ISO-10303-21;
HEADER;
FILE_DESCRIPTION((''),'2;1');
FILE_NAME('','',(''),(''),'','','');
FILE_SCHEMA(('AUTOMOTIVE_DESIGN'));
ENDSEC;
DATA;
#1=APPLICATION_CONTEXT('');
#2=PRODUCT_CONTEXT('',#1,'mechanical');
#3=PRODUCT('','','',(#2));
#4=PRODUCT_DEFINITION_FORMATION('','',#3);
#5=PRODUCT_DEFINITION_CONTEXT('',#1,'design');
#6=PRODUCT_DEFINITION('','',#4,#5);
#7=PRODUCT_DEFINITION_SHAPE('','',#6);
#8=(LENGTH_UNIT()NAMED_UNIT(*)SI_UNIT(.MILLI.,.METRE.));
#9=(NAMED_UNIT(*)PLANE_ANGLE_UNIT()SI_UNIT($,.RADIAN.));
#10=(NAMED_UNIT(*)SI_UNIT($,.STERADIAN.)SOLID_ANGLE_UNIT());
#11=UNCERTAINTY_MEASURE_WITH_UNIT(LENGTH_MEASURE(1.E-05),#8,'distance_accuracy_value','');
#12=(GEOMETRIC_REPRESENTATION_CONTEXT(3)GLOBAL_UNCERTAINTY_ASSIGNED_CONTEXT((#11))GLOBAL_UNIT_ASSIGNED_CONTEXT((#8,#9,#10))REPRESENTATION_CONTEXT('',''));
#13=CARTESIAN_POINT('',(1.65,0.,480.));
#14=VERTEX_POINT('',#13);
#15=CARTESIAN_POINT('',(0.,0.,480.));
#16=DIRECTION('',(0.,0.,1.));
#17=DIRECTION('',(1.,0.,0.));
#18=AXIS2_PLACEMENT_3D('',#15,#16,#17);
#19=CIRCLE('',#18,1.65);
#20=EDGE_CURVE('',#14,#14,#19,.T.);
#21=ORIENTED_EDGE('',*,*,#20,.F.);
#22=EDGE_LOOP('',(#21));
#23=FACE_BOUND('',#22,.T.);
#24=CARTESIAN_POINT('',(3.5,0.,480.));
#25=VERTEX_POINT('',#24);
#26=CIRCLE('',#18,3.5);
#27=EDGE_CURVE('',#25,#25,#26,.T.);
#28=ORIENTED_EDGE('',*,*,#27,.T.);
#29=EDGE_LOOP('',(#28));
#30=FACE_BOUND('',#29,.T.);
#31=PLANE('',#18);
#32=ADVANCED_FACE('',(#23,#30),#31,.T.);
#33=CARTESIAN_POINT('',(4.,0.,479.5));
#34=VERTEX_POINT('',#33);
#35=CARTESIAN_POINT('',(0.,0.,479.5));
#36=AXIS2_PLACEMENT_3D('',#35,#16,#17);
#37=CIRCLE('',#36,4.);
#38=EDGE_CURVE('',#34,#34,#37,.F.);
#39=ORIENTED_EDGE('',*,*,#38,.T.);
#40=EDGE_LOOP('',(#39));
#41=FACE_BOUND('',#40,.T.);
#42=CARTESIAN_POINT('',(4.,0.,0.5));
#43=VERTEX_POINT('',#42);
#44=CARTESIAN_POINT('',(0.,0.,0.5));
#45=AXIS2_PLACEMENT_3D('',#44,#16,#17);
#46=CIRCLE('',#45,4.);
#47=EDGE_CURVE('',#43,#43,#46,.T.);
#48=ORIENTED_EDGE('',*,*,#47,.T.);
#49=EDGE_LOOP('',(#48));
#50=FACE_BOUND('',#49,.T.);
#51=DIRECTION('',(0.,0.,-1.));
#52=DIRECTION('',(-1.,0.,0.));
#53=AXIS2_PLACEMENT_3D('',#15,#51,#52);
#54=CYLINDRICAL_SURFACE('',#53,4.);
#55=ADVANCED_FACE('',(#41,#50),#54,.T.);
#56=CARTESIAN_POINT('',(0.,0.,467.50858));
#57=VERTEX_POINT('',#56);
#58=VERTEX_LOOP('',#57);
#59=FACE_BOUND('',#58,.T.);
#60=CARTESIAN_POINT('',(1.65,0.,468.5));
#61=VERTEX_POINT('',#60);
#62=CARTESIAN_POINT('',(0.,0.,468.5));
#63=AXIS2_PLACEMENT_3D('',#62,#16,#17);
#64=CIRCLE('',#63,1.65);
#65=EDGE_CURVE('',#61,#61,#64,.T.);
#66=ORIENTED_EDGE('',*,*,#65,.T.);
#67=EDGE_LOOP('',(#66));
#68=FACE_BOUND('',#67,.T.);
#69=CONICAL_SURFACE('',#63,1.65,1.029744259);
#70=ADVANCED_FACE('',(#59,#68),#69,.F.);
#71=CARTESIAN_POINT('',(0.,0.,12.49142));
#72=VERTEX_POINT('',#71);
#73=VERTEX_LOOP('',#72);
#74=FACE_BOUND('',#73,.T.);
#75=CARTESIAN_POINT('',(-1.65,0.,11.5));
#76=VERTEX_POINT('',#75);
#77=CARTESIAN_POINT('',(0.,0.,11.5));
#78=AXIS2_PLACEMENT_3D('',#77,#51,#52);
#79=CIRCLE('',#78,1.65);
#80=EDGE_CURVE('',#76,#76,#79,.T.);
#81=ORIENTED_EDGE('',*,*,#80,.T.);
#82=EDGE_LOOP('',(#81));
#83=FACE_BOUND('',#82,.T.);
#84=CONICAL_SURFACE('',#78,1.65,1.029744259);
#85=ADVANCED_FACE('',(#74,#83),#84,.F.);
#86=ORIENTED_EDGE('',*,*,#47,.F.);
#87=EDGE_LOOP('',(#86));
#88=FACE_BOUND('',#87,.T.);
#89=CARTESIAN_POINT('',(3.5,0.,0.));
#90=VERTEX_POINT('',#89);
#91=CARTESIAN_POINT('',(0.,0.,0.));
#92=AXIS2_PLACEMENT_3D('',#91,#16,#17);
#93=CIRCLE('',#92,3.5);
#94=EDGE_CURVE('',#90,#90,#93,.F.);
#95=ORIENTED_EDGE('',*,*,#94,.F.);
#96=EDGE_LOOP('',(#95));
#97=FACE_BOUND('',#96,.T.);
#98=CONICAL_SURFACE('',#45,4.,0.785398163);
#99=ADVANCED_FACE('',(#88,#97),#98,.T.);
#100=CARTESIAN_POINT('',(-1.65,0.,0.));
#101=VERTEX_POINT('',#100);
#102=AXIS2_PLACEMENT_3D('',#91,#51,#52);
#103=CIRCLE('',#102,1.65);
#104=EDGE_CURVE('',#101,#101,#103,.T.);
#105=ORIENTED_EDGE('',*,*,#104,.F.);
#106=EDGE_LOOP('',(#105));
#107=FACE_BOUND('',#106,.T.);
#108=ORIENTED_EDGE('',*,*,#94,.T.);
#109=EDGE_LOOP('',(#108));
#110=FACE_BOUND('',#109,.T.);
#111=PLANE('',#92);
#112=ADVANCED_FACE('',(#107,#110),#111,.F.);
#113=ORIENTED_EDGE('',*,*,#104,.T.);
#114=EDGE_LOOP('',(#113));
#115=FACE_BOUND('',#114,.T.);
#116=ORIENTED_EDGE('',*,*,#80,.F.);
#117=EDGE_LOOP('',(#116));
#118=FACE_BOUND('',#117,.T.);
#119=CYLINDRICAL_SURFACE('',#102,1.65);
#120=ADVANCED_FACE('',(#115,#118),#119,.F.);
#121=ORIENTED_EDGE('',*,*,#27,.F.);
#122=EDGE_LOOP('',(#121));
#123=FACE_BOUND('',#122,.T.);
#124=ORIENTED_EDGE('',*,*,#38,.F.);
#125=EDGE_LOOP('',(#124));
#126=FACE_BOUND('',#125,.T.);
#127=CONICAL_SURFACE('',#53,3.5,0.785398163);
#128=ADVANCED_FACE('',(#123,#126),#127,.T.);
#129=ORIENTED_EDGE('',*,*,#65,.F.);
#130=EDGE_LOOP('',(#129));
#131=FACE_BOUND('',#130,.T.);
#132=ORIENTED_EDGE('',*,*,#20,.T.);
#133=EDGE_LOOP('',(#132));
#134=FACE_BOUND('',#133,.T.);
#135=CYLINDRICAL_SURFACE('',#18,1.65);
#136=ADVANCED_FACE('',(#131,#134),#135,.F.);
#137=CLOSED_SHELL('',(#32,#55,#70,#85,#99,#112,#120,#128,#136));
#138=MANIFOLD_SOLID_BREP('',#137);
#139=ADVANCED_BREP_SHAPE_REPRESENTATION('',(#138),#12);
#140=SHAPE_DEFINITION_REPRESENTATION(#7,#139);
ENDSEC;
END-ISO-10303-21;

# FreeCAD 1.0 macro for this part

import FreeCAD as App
import Part
import Sketcher

V = App.Vector


def edges_at(feature, points):
    """Names of the edges that pass closest to the given points."""
    edges = feature.Shape.Edges
    near = lambda p: min(range(len(edges)), key=lambda i: edges[i].distToShape(Part.Vertex(*p))[0])
    return sorted({f"Edge{near(p) + 1}" for p in points})

doc = App.newDocument("Part")
params = doc.addObject("Spreadsheet::Sheet", "Params")
for row, (alias, value) in enumerate([
    ("sketch1_diameter", "8 mm"),
    ("pad1_length", "480 mm"),
    ("chamfer_size", "0.5 mm"),
    ("sketch2_diameter", "3.3 mm"),
    ("hole_diameter", "3.3 mm"),
    ("hole_depth", "11.5 mm"),
    ("sketch3_diameter", "3.3 mm"),
    ("hole2_diameter", "3.3 mm"),
    ("hole2_depth", "11.5 mm"),
], start=1):
    params.set(f"A{row}", alias)
    params.set(f"B{row}", "=" + value)
    params.setAlias(f"B{row}", alias)

body = doc.addObject("PartDesign::Body", "Body")

sketch1 = body.newObject("Sketcher::SketchObject", "Sketch")
sketch1.AttachmentSupport = (doc.getObject("XY_Plane"), [""])
sketch1.MapMode = "FlatFace"
sketch1.addGeometry(Part.Circle(V(0, 0, 0), V(0, 0, 1), 4), False)
sketch1.addConstraint(Sketcher.Constraint("Coincident", 0, 3, -1, 1))
sketch1.addConstraint(Sketcher.Constraint("Diameter", 0, 8.0))
sketch1.setExpression("Constraints[1]", "Params.sketch1_diameter")
pad1 = body.newObject("PartDesign::Pad", "Pad")
pad1.Profile = sketch1
pad1.setExpression("Length", "Params.pad1_length")
doc.recompute()

chamfer = body.newObject("PartDesign::Chamfer", "Chamfer")
chamfer.Base = (pad1, edges_at(pad1, [(-4, 0, 0), (-4, 0, 480)]))
chamfer.setExpression("Size", "Params.chamfer_size")

sketch2 = body.newObject("Sketcher::SketchObject", "Sketch001")
sketch2.AttachmentSupport = (doc.getObject("XY_Plane"), [""])
sketch2.MapMode = "FlatFace"
sketch2.AttachmentOffset = App.Placement(V(0, 0, 480), App.Rotation())
sketch2.addGeometry(Part.Circle(V(0, 0, 0), V(0, 0, 1), 1.65), False)
sketch2.addConstraint(Sketcher.Constraint("Coincident", 0, 3, -1, 1))
sketch2.addConstraint(Sketcher.Constraint("Diameter", 0, 3.3))
sketch2.setExpression("Constraints[1]", "Params.sketch2_diameter")
doc.recompute()
hole = body.newObject("PartDesign::Hole", "Hole")
hole.Profile = sketch2
hole.ThreadType = "None"
hole.setExpression("Diameter", "Params.hole_diameter")
hole.DepthType = "Dimension"
hole.setExpression("Depth", "Params.hole_depth")
hole.DrillPoint = "Angled"
hole.DrillPointAngle = 118

sketch3 = body.newObject("Sketcher::SketchObject", "Sketch002")
sketch3.AttachmentSupport = (doc.getObject("XY_Plane"), [""])
sketch3.MapMode = "FlatFace"
sketch3.addGeometry(Part.Circle(V(0, 0, 0), V(0, 0, 1), 1.65), False)
sketch3.addConstraint(Sketcher.Constraint("Coincident", 0, 3, -1, 1))
sketch3.addConstraint(Sketcher.Constraint("Diameter", 0, 3.3))
sketch3.setExpression("Constraints[1]", "Params.sketch3_diameter")
doc.recompute()
hole2 = body.newObject("PartDesign::Hole", "Hole001")
hole2.Profile = sketch3
hole2.ThreadType = "None"
hole2.setExpression("Diameter", "Params.hole2_diameter")
hole2.DepthType = "Dimension"
hole2.setExpression("Depth", "Params.hole2_depth")
hole2.DrillPoint = "Angled"
hole2.DrillPointAngle = 118
hole2.Reversed = True

doc.recompute()
